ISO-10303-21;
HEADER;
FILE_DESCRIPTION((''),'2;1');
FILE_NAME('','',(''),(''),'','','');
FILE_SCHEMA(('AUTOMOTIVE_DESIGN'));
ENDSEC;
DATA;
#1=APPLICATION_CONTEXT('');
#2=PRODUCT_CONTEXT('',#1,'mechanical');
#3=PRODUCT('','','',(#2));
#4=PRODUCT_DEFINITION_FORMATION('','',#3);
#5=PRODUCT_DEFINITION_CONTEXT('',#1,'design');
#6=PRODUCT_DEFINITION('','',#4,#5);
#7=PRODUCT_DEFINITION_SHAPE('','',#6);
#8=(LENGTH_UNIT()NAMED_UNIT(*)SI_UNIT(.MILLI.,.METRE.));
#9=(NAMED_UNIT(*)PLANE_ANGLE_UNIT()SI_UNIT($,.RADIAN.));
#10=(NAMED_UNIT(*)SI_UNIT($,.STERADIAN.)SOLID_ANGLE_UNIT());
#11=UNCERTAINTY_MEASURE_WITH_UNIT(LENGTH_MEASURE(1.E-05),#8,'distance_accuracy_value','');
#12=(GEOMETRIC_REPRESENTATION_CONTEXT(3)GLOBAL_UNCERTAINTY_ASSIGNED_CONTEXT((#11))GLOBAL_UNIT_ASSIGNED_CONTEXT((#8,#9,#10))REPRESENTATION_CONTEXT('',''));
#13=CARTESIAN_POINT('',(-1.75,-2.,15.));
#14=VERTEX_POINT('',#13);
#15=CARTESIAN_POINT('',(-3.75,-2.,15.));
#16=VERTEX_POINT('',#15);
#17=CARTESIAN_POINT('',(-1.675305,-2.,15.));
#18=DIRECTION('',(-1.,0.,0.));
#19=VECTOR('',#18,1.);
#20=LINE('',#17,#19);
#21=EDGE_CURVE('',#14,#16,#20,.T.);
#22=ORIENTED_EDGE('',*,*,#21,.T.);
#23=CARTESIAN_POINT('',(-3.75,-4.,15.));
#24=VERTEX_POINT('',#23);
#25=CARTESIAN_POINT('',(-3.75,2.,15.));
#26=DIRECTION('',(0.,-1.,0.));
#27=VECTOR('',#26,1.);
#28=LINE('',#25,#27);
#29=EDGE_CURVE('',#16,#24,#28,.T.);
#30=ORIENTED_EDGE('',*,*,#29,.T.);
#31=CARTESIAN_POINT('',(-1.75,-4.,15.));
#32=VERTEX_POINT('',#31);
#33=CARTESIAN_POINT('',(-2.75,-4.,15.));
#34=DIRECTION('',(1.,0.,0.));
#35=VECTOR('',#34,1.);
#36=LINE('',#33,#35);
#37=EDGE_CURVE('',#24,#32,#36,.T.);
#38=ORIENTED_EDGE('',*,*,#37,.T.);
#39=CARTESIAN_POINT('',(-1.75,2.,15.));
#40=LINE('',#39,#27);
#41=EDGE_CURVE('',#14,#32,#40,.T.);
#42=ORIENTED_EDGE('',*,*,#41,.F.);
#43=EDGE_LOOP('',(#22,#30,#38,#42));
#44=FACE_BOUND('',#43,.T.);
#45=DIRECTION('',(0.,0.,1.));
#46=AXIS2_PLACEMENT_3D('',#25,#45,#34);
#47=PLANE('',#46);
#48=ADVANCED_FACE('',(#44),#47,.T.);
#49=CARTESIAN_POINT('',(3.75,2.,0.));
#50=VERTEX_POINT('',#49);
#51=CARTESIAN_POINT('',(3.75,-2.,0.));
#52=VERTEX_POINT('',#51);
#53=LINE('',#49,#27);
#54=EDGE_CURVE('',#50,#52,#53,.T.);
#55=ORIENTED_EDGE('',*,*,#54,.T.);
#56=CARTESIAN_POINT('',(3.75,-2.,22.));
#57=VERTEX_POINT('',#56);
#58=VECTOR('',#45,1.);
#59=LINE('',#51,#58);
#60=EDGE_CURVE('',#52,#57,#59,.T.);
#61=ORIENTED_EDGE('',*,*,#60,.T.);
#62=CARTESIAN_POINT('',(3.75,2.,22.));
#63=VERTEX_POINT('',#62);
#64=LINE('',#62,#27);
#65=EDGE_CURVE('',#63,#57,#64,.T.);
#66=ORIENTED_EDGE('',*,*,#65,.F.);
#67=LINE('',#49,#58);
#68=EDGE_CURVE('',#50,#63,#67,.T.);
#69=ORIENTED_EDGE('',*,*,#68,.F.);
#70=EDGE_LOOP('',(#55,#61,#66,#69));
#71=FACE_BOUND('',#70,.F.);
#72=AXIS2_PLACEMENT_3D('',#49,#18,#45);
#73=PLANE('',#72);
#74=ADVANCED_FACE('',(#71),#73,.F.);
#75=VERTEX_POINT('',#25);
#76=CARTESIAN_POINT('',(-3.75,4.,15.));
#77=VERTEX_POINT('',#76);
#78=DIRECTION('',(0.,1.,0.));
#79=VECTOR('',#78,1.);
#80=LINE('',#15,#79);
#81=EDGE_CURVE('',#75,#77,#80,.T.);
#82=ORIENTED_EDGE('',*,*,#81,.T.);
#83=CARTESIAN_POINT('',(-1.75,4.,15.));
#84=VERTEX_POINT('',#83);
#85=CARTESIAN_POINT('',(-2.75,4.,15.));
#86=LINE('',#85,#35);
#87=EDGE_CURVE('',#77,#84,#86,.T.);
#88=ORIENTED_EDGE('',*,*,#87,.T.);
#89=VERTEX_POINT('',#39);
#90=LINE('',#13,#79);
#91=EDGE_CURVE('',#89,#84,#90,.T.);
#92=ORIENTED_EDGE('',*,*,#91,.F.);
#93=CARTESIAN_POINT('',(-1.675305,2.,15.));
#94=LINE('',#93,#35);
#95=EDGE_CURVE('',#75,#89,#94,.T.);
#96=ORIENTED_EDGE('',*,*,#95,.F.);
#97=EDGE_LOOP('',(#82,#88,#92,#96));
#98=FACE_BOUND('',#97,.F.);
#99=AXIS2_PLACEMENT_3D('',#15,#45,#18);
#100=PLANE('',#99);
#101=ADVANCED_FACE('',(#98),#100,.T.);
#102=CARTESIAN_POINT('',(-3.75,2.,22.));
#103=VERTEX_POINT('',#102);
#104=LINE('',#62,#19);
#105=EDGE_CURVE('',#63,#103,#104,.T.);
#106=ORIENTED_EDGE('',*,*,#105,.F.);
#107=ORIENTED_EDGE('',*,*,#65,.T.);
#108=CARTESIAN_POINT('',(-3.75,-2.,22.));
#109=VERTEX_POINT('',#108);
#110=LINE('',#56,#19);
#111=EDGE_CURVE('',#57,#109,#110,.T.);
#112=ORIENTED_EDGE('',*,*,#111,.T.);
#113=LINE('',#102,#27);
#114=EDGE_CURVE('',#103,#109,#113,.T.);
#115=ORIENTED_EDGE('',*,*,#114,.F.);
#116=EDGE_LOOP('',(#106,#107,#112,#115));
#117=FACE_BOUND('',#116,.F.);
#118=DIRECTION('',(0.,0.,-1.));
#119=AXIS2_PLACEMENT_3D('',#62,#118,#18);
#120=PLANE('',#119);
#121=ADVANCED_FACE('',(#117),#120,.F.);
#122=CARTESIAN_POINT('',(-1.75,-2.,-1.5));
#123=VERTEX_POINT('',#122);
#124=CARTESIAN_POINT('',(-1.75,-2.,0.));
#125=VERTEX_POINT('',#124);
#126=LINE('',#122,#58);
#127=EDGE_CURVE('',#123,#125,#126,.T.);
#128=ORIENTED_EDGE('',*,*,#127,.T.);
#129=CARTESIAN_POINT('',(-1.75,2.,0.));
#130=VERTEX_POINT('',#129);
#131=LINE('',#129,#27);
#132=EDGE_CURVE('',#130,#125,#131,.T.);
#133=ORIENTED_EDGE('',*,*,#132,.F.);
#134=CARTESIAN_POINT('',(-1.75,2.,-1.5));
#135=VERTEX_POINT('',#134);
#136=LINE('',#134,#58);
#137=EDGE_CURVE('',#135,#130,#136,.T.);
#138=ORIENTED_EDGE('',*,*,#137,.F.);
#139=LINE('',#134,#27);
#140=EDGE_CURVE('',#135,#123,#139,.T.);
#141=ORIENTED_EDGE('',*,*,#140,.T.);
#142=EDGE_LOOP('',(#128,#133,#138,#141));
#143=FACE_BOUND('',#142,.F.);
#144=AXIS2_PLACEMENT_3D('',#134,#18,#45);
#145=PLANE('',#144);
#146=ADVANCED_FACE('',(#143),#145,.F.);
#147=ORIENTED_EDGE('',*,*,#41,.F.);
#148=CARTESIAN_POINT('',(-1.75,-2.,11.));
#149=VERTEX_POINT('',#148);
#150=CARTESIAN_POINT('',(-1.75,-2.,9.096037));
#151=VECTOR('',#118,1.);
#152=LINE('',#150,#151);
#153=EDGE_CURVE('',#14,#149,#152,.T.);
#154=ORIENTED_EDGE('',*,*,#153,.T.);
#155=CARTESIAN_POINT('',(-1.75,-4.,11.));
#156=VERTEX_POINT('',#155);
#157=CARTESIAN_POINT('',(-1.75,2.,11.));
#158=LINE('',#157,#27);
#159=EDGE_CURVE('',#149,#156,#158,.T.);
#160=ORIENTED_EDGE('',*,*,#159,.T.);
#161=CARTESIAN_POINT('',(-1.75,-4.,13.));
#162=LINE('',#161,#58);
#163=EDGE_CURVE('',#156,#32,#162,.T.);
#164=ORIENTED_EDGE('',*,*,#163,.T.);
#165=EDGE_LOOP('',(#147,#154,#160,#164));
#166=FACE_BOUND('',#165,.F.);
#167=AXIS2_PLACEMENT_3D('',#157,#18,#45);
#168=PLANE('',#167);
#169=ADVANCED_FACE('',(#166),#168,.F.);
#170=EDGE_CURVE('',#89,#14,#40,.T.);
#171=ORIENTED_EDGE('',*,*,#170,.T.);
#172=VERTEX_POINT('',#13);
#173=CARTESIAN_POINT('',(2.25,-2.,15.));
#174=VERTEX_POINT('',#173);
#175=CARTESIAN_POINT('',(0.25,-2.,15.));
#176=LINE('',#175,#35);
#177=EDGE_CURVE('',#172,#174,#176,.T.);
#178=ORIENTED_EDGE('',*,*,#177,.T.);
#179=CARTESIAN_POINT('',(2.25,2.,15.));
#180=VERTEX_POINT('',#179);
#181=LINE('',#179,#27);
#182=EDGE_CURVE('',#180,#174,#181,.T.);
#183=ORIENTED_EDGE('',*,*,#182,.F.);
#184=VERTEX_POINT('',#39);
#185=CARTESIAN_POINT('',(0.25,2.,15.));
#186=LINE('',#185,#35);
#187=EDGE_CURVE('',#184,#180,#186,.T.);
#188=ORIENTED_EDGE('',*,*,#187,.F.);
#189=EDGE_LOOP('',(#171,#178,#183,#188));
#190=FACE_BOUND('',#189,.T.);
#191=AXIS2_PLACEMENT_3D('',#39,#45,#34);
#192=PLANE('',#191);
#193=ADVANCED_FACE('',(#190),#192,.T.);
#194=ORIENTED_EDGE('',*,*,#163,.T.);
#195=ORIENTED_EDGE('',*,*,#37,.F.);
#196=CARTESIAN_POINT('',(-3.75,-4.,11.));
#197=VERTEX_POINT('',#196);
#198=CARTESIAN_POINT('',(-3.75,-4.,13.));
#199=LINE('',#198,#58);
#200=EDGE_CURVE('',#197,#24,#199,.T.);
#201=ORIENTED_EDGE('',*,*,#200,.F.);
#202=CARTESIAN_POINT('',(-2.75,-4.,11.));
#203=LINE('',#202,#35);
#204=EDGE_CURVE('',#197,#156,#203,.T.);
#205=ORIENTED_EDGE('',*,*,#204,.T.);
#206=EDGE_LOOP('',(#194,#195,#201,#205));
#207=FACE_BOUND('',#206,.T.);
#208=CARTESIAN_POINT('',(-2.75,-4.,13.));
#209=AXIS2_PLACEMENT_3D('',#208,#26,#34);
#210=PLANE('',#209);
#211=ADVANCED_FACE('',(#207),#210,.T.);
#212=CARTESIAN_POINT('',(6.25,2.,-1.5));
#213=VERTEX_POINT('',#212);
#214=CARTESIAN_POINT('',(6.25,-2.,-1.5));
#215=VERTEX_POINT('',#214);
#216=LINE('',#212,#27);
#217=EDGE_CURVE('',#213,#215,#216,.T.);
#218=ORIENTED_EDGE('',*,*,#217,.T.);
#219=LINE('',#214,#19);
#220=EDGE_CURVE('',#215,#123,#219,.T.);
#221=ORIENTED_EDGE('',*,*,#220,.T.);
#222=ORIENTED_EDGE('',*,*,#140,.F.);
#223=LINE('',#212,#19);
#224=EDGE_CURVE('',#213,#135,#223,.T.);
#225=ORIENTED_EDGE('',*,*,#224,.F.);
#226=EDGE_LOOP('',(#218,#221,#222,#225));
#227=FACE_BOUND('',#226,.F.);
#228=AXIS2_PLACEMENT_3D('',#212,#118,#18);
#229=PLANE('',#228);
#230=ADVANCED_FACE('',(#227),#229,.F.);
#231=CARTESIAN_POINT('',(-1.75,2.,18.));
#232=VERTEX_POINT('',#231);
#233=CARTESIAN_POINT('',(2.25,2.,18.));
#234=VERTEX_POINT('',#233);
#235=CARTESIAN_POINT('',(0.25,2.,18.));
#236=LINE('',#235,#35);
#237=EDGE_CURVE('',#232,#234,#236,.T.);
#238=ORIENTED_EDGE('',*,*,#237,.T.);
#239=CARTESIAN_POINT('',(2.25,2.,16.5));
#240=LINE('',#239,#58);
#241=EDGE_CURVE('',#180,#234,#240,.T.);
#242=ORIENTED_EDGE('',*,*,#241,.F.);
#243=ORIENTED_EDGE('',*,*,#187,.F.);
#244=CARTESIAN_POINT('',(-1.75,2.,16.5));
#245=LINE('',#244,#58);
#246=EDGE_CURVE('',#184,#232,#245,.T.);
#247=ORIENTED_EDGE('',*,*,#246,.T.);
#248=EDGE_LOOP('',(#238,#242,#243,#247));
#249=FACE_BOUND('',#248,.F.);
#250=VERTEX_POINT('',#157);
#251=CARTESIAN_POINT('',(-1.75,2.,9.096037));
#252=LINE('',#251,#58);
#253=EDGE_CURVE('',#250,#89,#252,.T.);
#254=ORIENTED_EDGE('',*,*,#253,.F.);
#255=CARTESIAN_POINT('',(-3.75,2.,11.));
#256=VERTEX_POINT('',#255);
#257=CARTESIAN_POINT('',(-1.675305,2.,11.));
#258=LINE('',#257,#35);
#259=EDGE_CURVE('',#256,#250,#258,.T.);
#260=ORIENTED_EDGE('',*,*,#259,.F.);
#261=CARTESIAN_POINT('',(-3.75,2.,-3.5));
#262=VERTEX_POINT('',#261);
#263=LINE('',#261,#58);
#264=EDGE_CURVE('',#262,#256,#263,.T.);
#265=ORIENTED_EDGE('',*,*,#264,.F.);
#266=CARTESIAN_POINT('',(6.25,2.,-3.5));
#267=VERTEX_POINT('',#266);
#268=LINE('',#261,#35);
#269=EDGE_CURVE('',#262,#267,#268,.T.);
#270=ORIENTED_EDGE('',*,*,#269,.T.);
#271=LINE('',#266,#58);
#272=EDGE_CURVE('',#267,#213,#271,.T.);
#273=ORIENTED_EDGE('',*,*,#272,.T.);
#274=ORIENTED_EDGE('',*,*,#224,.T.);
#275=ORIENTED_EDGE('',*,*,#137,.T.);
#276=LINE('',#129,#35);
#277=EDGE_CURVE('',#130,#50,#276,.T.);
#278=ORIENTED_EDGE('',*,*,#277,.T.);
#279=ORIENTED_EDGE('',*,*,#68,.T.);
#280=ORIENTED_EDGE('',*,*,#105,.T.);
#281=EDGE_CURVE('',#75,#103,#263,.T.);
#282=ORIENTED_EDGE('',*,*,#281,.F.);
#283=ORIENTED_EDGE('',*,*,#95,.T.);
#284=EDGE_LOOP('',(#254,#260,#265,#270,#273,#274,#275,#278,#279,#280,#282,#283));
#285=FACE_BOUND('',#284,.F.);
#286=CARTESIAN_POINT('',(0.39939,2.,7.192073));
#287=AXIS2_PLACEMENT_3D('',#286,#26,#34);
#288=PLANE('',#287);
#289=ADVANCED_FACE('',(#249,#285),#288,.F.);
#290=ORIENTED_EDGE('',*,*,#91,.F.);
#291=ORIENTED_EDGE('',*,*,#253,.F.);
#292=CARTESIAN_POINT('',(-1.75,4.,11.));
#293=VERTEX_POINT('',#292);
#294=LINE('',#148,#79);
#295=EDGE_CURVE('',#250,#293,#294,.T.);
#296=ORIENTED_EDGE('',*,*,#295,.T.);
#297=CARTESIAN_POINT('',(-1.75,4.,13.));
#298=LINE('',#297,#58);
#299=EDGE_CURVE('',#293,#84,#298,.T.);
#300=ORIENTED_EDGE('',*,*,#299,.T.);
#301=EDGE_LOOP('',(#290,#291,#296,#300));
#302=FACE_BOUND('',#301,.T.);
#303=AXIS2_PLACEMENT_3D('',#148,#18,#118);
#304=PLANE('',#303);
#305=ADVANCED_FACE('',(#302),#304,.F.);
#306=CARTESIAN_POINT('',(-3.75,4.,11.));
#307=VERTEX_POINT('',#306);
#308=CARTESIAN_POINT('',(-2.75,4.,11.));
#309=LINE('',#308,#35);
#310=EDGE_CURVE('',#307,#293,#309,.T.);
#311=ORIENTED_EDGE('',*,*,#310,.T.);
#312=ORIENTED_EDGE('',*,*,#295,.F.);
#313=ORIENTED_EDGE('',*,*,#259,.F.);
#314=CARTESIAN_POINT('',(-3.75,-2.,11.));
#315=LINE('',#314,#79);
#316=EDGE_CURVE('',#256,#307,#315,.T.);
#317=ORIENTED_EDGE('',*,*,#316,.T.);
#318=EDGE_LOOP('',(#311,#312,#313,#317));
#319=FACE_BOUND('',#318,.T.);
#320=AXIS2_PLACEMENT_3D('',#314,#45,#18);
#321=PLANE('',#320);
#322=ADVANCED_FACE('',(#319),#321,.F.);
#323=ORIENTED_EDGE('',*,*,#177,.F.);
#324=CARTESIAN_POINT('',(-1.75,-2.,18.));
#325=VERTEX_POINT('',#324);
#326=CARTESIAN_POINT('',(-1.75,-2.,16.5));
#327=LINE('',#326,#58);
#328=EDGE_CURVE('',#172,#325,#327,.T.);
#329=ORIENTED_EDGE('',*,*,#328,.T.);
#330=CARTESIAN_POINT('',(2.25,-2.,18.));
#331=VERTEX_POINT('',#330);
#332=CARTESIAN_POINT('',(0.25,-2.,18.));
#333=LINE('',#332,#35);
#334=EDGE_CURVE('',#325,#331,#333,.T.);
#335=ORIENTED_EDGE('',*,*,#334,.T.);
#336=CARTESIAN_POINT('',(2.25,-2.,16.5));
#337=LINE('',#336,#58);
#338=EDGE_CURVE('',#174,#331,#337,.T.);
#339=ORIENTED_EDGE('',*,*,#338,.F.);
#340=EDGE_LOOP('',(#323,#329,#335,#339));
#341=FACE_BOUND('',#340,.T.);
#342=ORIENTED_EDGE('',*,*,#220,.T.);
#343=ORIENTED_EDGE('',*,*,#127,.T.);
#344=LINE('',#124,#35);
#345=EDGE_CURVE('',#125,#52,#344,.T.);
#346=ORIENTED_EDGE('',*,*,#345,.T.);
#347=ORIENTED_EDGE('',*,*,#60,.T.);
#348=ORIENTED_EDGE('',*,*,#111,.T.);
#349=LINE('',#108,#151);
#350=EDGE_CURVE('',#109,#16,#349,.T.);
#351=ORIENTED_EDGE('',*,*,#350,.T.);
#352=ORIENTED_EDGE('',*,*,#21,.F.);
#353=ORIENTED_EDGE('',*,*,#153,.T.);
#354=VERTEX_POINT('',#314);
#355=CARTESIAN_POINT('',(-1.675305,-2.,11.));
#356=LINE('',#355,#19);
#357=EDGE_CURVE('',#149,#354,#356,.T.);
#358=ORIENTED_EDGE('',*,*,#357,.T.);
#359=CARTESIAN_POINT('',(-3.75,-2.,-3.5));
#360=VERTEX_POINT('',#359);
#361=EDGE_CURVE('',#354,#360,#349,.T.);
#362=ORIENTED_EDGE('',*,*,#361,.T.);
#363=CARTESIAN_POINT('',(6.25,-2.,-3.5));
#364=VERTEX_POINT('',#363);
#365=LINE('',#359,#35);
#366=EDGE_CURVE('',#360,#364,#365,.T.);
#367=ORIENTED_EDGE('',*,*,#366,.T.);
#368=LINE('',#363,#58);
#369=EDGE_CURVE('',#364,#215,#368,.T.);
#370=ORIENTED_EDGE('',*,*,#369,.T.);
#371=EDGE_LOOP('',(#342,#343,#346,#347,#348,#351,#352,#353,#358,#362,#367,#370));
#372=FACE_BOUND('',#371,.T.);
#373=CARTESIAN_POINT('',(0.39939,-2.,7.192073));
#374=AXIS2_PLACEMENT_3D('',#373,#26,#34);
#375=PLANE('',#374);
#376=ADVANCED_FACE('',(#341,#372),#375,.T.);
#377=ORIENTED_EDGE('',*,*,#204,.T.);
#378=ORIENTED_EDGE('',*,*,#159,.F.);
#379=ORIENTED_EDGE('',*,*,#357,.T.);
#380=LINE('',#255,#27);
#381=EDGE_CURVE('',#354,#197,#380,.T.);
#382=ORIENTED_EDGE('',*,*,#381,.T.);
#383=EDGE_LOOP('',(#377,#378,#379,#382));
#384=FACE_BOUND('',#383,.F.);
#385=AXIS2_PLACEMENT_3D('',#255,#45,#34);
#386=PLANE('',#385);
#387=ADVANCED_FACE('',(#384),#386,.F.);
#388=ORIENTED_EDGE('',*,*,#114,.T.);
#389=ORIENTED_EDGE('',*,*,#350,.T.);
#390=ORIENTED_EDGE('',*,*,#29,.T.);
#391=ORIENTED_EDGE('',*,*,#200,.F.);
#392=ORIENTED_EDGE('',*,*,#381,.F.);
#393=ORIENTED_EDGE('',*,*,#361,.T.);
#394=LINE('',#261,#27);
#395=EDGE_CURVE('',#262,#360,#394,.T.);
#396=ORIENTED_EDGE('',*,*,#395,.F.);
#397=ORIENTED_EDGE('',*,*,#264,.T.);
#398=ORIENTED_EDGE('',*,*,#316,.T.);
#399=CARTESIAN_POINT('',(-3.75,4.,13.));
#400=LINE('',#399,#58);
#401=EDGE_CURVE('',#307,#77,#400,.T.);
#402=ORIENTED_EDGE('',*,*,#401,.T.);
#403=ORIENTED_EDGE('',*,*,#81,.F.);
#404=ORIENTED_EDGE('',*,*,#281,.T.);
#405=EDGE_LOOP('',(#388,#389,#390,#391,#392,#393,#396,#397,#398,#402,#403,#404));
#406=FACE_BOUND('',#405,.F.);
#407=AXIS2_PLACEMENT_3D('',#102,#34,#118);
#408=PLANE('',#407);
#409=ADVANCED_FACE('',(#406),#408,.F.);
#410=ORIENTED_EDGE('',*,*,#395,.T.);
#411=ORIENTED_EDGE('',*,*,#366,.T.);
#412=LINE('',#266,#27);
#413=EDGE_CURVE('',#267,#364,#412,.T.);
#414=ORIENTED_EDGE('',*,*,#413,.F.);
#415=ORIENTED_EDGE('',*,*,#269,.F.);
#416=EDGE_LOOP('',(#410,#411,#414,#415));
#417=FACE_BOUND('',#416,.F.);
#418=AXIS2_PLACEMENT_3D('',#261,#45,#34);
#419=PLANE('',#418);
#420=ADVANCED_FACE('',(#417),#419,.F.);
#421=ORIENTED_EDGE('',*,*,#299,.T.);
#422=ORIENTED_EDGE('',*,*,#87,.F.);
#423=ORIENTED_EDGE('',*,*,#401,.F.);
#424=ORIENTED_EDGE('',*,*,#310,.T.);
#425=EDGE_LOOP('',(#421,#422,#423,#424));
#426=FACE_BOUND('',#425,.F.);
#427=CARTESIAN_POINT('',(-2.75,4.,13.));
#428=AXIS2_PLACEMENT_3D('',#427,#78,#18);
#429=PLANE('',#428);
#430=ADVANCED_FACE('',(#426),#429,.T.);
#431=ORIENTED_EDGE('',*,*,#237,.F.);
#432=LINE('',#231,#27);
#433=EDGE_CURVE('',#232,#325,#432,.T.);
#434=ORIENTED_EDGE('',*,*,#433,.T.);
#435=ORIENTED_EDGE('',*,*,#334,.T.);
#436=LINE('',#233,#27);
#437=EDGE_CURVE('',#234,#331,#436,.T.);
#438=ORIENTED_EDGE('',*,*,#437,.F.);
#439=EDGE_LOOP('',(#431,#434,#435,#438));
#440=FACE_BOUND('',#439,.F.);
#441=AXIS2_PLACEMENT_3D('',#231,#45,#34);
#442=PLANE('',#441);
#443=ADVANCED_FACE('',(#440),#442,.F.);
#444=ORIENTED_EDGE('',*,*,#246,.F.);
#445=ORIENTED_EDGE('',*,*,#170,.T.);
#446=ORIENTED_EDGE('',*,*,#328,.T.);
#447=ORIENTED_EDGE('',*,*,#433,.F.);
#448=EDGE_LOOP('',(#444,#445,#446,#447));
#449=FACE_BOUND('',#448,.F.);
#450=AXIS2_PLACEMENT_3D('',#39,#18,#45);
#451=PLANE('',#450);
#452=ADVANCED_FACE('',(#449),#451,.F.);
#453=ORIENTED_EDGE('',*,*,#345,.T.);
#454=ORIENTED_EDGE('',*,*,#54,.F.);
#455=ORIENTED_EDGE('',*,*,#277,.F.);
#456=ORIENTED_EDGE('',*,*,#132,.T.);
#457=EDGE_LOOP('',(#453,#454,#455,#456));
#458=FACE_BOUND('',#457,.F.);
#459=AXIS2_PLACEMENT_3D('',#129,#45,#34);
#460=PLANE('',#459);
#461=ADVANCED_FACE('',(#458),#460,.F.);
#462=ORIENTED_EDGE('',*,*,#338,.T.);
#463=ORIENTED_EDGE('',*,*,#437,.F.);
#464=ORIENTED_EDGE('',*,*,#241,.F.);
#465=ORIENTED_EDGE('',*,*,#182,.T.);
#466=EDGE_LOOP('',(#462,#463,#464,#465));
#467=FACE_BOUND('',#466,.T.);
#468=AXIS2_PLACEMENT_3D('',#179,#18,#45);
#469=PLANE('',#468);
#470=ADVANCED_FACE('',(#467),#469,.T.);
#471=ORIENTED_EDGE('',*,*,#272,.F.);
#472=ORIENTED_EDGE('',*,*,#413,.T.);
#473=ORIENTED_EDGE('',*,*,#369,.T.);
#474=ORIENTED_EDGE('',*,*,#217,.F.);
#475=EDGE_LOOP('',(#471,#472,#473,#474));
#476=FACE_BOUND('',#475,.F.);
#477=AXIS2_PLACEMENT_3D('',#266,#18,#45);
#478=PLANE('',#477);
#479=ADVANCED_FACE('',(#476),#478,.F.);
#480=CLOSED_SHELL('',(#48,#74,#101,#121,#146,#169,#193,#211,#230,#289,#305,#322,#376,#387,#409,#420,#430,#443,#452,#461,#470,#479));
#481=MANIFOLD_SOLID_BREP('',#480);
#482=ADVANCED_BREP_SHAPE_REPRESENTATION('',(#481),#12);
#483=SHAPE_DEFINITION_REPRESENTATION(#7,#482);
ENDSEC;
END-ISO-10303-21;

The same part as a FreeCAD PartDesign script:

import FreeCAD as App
import Part
import Sketcher


def add_polygon(sketch, points):
    """Adds a closed chain of lines whose ends are joined by coincident constraints."""
    first, n = sketch.GeometryCount, len(points)
    for a, b in zip(points, points[1:] + points[:1]):
        sketch.addGeometry(Part.LineSegment(App.Vector(*a, 0), App.Vector(*b, 0)), False)
    for i in range(n):
        sketch.addConstraint(Sketcher.Constraint("Coincident", first + i, 2, first + (i + 1) % n, 1))

doc = App.newDocument("Part")
body = doc.addObject("PartDesign::Body", "Body")

# Sketch on XZ plane
sketch1 = body.newObject("Sketcher::SketchObject", "Sketch")
sketch1.AttachmentSupport = (doc.getObject("XZ_Plane"), [""])
sketch1.MapMode = "FlatFace"
sketch1.AttachmentOffset = App.Placement(App.Vector(0, 0, -2), App.Rotation())
add_polygon(sketch1, [(3.8, 0), (3.8, 22), (-3.8, 22), (-3.8, -3.5), (6.2, -3.5), (6.2, -1.5), (-1.8, -1.5), (-1.8, 0)])  # lines 0-7
add_polygon(sketch1, [(2.2, 15), (-1.8, 15), (-1.8, 18), (2.2, 18)])  # lines 8-11
sketch1.addConstraint(Sketcher.Constraint("Vertical", 0))
sketch1.addConstraint(Sketcher.Constraint("Horizontal", 1))
sketch1.addConstraint(Sketcher.Constraint("Vertical", 2))
sketch1.addConstraint(Sketcher.Constraint("Horizontal", 3))
sketch1.addConstraint(Sketcher.Constraint("Vertical", 4))
sketch1.addConstraint(Sketcher.Constraint("Horizontal", 5))
sketch1.addConstraint(Sketcher.Constraint("Vertical", 6))
sketch1.addConstraint(Sketcher.Constraint("Horizontal", 7))
sketch1.addConstraint(Sketcher.Constraint("Horizontal", 8))
sketch1.addConstraint(Sketcher.Constraint("Vertical", 9))
sketch1.addConstraint(Sketcher.Constraint("Horizontal", 10))
sketch1.addConstraint(Sketcher.Constraint("Vertical", 11))
sketch1.addConstraint(Sketcher.Constraint("PointOnObject", 6, 2, -1))
sketch1.addConstraint(Sketcher.Constraint("Vertical", 6, 2, 8, 2))
sketch1.addConstraint(Sketcher.Constraint("DistanceX", 3, 1, 3, 2, 10.0))
sketch1.addConstraint(Sketcher.Constraint("DistanceX", 5, 2, 5, 1, 8.0))
sketch1.addConstraint(Sketcher.Constraint("DistanceX", 8, 2, 8, 1, 4.0))
sketch1.addConstraint(Sketcher.Constraint("DistanceY", 0, 1, 0, 2, 22.0))
sketch1.addConstraint(Sketcher.Constraint("DistanceY", 4, 1, 4, 2, 2.0))
sketch1.addConstraint(Sketcher.Constraint("DistanceY", 9, 1, 9, 2, 3.0))
sketch1.addConstraint(Sketcher.Constraint("DistanceX", 1, 2, 1, 1, 7.5))
sketch1.addConstraint(Sketcher.Constraint("DistanceY", 2, 2, 2, 1, 25.5))
sketch1.addConstraint(Sketcher.Constraint("DistanceY", -1, 1, 8, 2, 15.0))
sketch1.addConstraint(Sketcher.Constraint("DistanceX", -1, 1, 0, 2, 3.75))
pad1 = body.newObject("PartDesign::Pad", "Pad")
pad1.Profile = sketch1
pad1.Length = 4

# Sketch on XZ plane
sketch2 = body.newObject("Sketcher::SketchObject", "Sketch001")
sketch2.AttachmentSupport = (doc.getObject("XZ_Plane"), [""])
sketch2.MapMode = "FlatFace"
sketch2.AttachmentOffset = App.Placement(App.Vector(0, 0, -2), App.Rotation())
add_polygon(sketch2, [(-3.8, 15), (-3.8, 11), (-1.8, 11), (-1.8, 15)])  # lines 0-3
sketch2.addConstraint(Sketcher.Constraint("Vertical", 0))
sketch2.addConstraint(Sketcher.Constraint("Horizontal", 1))
sketch2.addConstraint(Sketcher.Constraint("Vertical", 2))
sketch2.addConstraint(Sketcher.Constraint("Horizontal", 3))
sketch2.addConstraint(Sketcher.Constraint("DistanceX", 1, 1, 1, 2, 2.0))
sketch2.addConstraint(Sketcher.Constraint("DistanceY", 0, 2, 0, 1, 4.0))
sketch2.addConstraint(Sketcher.Constraint("DistanceY", -1, 1, 0, 2, 11.0))
sketch2.addConstraint(Sketcher.Constraint("DistanceX", 0, 2, -1, 1, 3.75))
pad2 = body.newObject("PartDesign::Pad", "Pad001")
pad2.Profile = sketch2
pad2.Length = 6
doc.recompute()

mirrored = body.newObject("PartDesign::Mirrored", "Mirrored")
mirrored.Originals = [pad2]
mirrored.MirrorPlane = (doc.getObject("XZ_Plane"), [""])
body.Tip = mirrored

doc.recompute()
